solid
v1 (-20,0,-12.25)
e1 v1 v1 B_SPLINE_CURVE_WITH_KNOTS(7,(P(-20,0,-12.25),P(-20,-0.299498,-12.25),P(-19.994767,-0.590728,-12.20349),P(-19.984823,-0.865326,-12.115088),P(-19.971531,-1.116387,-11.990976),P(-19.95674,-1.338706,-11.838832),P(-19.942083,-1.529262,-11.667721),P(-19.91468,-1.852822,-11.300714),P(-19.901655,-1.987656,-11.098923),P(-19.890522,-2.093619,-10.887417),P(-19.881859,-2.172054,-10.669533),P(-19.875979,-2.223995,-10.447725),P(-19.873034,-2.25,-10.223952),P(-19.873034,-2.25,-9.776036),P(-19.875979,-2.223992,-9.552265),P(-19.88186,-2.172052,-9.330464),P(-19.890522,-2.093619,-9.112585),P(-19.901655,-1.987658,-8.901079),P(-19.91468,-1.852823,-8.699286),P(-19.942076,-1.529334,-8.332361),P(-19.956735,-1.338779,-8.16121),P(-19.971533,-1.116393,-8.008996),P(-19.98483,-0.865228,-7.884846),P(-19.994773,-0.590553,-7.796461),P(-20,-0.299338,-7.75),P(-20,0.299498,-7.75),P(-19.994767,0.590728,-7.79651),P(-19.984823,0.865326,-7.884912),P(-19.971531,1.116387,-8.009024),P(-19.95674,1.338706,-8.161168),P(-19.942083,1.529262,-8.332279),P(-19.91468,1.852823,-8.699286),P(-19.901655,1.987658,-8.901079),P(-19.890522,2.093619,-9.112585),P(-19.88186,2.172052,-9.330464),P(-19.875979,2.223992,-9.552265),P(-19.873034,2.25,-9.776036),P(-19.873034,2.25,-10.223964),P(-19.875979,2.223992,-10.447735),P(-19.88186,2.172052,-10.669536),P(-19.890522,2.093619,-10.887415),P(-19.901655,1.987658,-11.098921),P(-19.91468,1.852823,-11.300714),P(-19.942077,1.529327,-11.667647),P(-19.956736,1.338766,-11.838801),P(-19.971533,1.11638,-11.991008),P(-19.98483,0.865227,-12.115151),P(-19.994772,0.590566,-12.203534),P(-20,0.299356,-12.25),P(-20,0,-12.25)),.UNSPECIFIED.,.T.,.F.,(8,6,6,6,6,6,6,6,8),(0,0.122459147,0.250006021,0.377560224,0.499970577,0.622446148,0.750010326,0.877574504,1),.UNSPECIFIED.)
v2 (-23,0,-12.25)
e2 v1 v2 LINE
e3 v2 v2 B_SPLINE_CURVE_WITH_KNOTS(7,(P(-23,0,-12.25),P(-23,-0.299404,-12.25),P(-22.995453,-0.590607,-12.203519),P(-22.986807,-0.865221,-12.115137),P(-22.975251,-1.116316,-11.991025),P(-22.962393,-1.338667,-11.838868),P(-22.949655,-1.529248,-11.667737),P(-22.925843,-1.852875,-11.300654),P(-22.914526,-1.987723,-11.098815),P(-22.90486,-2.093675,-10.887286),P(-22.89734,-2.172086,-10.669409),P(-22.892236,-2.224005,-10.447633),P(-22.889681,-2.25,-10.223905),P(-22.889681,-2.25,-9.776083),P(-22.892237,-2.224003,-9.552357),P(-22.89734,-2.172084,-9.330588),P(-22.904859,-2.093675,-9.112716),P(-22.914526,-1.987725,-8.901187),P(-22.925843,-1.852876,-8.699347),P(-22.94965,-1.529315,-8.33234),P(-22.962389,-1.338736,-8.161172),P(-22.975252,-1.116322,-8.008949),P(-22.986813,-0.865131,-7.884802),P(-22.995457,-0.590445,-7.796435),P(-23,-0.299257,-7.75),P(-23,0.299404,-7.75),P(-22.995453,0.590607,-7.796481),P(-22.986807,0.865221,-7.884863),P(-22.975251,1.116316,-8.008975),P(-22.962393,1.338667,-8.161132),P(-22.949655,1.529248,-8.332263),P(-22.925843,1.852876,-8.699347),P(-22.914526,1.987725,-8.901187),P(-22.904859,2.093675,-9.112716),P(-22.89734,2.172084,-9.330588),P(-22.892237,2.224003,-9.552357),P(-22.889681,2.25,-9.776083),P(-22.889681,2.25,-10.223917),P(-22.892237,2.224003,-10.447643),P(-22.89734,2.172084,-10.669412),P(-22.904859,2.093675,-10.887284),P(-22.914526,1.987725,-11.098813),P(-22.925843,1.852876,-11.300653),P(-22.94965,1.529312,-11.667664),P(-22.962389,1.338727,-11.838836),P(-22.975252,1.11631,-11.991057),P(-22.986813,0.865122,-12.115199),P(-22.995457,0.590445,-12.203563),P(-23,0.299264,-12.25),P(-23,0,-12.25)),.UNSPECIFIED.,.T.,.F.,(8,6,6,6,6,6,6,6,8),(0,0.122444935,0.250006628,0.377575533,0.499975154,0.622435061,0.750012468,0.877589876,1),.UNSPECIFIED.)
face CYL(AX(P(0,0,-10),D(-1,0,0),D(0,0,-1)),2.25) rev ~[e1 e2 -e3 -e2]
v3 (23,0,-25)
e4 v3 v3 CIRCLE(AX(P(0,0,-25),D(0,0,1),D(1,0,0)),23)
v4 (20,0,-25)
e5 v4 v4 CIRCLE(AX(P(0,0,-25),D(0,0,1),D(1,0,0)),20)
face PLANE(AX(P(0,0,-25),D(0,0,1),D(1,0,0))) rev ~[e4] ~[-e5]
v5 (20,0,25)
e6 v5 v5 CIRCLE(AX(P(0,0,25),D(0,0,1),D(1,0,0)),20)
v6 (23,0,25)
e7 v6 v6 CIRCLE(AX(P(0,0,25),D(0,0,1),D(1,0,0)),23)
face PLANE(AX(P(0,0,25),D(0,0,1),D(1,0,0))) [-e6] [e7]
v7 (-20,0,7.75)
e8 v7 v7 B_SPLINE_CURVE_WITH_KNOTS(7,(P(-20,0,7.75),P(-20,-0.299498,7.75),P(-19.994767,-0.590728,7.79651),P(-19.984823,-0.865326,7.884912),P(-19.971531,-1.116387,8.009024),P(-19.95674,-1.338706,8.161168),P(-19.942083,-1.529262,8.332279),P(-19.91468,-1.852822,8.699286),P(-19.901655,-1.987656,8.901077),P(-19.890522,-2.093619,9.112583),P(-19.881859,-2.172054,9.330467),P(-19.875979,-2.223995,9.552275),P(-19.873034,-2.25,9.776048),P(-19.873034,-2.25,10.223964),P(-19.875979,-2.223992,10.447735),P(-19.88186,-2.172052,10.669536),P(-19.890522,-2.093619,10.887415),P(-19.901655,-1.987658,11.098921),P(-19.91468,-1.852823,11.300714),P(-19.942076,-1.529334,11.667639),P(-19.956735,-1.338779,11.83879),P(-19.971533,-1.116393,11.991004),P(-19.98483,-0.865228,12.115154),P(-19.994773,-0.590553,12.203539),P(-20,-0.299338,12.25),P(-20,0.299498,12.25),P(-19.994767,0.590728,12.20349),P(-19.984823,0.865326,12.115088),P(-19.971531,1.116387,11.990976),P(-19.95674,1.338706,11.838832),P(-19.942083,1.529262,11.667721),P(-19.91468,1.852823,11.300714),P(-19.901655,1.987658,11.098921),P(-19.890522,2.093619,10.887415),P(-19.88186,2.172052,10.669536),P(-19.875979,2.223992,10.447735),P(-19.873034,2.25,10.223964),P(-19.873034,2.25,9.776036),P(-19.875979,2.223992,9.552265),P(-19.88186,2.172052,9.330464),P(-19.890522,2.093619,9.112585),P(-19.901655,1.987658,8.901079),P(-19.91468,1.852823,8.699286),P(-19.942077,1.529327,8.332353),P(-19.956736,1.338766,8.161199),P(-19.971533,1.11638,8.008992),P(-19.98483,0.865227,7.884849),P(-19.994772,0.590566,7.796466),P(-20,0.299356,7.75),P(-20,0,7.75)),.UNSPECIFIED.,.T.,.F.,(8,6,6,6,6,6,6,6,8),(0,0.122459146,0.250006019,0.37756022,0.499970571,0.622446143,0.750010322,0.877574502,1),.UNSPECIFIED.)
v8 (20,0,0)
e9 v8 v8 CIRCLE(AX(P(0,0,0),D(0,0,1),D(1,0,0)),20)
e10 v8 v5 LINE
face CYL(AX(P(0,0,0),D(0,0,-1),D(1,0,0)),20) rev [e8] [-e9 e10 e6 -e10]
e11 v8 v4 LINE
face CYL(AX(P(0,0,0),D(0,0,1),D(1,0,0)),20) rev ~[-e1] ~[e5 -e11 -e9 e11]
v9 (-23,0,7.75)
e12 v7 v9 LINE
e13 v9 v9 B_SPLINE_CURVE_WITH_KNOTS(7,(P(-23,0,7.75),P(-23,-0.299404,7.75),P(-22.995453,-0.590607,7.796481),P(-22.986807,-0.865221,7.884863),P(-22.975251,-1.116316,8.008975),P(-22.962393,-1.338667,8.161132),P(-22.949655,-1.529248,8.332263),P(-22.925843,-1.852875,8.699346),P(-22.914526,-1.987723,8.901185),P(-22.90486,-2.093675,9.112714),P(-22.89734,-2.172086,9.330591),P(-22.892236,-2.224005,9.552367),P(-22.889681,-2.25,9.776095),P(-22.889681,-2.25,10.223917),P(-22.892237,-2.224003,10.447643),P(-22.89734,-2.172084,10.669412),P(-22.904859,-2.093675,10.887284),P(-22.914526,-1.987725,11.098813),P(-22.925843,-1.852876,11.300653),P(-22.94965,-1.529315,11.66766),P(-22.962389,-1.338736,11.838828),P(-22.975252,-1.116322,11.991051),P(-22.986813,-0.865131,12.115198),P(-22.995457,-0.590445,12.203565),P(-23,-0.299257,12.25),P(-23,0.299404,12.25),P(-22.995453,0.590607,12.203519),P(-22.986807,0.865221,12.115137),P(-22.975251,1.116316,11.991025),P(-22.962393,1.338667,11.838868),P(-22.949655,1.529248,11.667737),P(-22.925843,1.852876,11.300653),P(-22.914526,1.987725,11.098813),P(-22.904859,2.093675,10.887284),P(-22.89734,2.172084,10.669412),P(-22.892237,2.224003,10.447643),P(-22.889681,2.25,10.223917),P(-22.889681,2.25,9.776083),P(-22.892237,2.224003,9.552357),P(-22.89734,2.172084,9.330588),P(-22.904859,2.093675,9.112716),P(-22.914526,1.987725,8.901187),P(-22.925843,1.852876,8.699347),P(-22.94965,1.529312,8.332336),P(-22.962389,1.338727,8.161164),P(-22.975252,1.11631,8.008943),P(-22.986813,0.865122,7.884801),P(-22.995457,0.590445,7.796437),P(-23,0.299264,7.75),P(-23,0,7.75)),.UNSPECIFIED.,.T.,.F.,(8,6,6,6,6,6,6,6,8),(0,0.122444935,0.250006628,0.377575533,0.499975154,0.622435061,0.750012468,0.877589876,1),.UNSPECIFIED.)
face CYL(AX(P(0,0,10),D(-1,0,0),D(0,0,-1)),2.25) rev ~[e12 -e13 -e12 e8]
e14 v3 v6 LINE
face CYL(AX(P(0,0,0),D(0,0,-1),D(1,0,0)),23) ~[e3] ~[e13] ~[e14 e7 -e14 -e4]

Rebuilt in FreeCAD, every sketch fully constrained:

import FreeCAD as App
import Part
import Sketcher

V = App.Vector
Q = App.Units.Quantity

doc = App.newDocument("Part")
body = doc.addObject("PartDesign::Body", "Body")

# Sketch on XY plane
sketch1 = body.newObject("Sketcher::SketchObject", "Sketch")
sketch1.AttachmentSupport = (doc.getObject("XY_Plane"), [""])
sketch1.MapMode = "FlatFace"
sketch1.addGeometry(Part.Circle(V(0, 0, 0), V(0, 0, 1), 23), False)
sketch1.addGeometry(Part.Circle(V(0, 0, 0), V(0, 0, 1), 20), False)
sketch1.addConstraint(Sketcher.Constraint("Coincident", 0, 3, -1, 1))
sketch1.addConstraint(Sketcher.Constraint("Coincident", 1, 3, -1, 1))
sketch1.addConstraint(Sketcher.Constraint("Diameter", 0, Q("46 mm")))
sketch1.addConstraint(Sketcher.Constraint("Diameter", 1, Q("40 mm")))
pad1 = body.newObject("PartDesign::Pad", "Pad")
pad1.Profile = sketch1
pad1.Length = 50
pad1.Midplane = True

# Sketch on YZ plane
sketch2 = body.newObject("Sketcher::SketchObject", "Sketch001")
sketch2.AttachmentSupport = (doc.getObject("YZ_Plane"), [""])
sketch2.MapMode = "FlatFace"
sketch2.addGeometry(Part.Circle(V(0, 10, 0), V(0, 0, 1), 2.25), False)
sketch2.addGeometry(Part.Circle(V(0, -10, 0), V(0, 0, 1), 2.25), False)
sketch2.addConstraint(Sketcher.Constraint("Equal", 0, 1))
sketch2.addConstraint(Sketcher.Constraint("Symmetric", 0, 3, 1, 3, -1, 1))
sketch2.addConstraint(Sketcher.Constraint("PointOnObject", 0, 3, -2))
sketch2.addConstraint(Sketcher.Constraint("Diameter", 0, Q("4.5 mm")))
sketch2.addConstraint(Sketcher.Constraint("DistanceY", -1, 1, 0, 3, Q("10 mm")))
doc.recompute()
hole = body.newObject("PartDesign::Hole", "Hole")
hole.Profile = sketch2
hole.ThreadType = "None"
hole.Diameter = 4.5
hole.DepthType = "ThroughAll"

doc.recompute()
